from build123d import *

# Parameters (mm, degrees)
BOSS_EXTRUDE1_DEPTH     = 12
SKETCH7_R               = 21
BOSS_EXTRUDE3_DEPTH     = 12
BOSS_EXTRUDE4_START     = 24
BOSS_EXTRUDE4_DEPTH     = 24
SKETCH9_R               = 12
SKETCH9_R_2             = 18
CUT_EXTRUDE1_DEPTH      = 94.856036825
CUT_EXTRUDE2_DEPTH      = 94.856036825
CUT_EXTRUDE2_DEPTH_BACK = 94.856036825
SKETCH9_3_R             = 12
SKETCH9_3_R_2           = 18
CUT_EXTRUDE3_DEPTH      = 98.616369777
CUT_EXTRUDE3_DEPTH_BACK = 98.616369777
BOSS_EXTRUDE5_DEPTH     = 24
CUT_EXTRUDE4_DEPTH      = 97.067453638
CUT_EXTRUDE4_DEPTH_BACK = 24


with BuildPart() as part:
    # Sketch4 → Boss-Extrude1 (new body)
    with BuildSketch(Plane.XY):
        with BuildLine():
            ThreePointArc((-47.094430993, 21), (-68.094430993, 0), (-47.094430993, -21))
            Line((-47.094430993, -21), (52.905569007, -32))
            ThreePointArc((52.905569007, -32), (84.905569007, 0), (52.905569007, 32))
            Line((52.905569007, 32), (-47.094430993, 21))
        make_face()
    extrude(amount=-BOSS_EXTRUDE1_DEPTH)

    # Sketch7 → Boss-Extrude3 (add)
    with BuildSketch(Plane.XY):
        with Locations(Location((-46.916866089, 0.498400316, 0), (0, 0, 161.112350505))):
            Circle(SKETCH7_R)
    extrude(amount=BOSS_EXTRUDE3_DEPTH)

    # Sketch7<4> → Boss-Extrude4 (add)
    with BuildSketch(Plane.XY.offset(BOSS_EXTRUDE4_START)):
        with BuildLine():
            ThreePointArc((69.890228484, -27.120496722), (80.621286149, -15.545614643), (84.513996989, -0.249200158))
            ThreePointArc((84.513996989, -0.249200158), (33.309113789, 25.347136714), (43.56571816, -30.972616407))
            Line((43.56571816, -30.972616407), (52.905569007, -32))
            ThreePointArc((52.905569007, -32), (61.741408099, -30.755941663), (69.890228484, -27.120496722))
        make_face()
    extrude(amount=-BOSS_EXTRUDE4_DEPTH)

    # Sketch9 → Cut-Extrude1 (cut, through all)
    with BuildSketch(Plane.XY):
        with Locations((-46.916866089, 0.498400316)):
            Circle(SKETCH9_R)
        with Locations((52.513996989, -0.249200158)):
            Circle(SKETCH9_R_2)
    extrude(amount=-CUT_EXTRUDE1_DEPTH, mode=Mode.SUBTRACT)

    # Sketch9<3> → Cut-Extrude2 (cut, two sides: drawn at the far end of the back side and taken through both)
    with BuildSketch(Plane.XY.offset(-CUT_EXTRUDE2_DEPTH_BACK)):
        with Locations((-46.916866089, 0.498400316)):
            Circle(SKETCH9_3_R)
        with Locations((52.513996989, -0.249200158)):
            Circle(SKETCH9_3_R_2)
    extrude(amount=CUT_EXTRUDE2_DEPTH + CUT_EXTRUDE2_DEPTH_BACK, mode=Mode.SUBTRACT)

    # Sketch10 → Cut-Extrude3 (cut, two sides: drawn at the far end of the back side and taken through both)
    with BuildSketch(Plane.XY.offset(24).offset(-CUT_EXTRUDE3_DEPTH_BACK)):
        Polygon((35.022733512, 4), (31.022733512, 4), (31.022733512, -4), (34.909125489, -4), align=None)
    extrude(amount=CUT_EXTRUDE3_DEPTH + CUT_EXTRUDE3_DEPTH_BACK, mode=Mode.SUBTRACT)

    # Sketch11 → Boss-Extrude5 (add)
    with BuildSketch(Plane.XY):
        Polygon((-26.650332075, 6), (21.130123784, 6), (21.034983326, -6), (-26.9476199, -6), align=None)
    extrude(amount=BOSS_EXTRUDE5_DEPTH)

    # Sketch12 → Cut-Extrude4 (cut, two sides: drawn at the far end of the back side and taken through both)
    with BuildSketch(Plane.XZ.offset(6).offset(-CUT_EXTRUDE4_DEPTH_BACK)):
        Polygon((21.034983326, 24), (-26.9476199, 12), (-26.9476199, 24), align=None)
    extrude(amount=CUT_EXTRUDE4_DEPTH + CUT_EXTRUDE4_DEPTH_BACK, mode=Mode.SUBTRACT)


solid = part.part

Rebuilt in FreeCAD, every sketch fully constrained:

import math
import FreeCAD as App
import Part
import Sketcher
from FreeCAD import Vector
Q = App.Units.Quantity

doc = App.newDocument("Part")
body = doc.addObject("PartDesign::Body", "Body")

# Sketch on XY plane
sketch1 = body.newObject("Sketcher::SketchObject", "Sketch")
sketch1.AttachmentSupport = (doc.getObject("XY_Plane"), [""])
sketch1.MapMode = "FlatFace"
sketch1.addGeometry([
    Part.ArcOfCircle(Part.Circle(Vector(-47, 0, 0), Vector(0, 0, 1), 21), math.radians(90), math.radians(270)),
    Part.LineSegment(Vector(-47, -21, 0), Vector(53, -32, 0)),
    Part.ArcOfCircle(Part.Circle(Vector(53, 0, 0), Vector(0, 0, 1), 32), math.radians(-90), math.radians(90)),
    Part.LineSegment(Vector(53, 32, 0), Vector(-47, 21, 0)),
], False)
sketch1.addConstraint([
    Sketcher.Constraint("Coincident", 0, 2, 1, 1),
    Sketcher.Constraint("Coincident", 1, 2, 2, 1),
    Sketcher.Constraint("Coincident", 2, 2, 3, 1),
    Sketcher.Constraint("Coincident", 3, 2, 0, 1),
    Sketcher.Constraint("Symmetric", 1, 2, 2, 2, -1),
    Sketcher.Constraint("Symmetric", 0, 2, 3, 2, -1),
    Sketcher.Constraint("Vertical", 2, 3, 1, 2),
    Sketcher.Constraint("Radius", 0, Q("21 mm")),
    Sketcher.Constraint("Radius", 2, Q("32 mm")),
    Sketcher.Constraint("DistanceX", 0, 3, 2, 3, Q("100 mm")),
    Sketcher.Constraint("DistanceX", 0, 2, 2, 3, Q("100 mm")),
    Sketcher.Constraint("DistanceX", 0, 3, -1, 1, Q("47.094431 mm")),
])
pad1 = body.newObject("PartDesign::Pad", "Pad")
pad1.Profile = sketch1
pad1.Length = 12
pad1.Reversed = True

# Sketch on XY plane
sketch2 = body.newObject("Sketcher::SketchObject", "Sketch001")
sketch2.AttachmentSupport = (doc.getObject("XY_Plane"), [""])
sketch2.MapMode = "FlatFace"
sketch2.addGeometry(Part.Circle(Vector(-47, 0, 0), Vector(0, 0, 1), 21), False)
sketch2.addConstraint([
    Sketcher.Constraint("Diameter", 0, Q("42 mm")),
    Sketcher.Constraint("DistanceY", -1, 1, 0, 3, Q("0.4984 mm")),
    Sketcher.Constraint("DistanceX", 0, 3, -1, 1, Q("46.916866 mm")),
])
pad2 = body.newObject("PartDesign::Pad", "Pad001")
pad2.Profile = sketch2
pad2.Length = 12

# Sketch on XY plane
sketch3 = body.newObject("Sketcher::SketchObject", "Sketch002")
sketch3.AttachmentSupport = (doc.getObject("XY_Plane"), [""])
sketch3.MapMode = "FlatFace"
sketch3.AttachmentOffset = App.Placement(Vector(0, 0, 24), App.Rotation())
sketch3.addGeometry([
    Part.ArcOfCircle(Part.Circle(Vector(53, 0, 0), Vector(0, 0, 1), 32), math.radians(-57), math.radians(0)),
    Part.ArcOfCircle(Part.Circle(Vector(53, 0, 0), Vector(0, 0, 1), 32), math.radians(0), math.radians(254)),
    Part.LineSegment(Vector(44, -31, 0), Vector(53, -32, 0)),
    Part.ArcOfCircle(Part.Circle(Vector(53, 0, 0), Vector(0, 0, 1), 32), math.radians(-90), math.radians(-58)),
], False)
sketch3.addConstraint([
    Sketcher.Constraint("Tangent", 0, 2, 1, 1),
    Sketcher.Constraint("Coincident", 1, 2, 2, 1),
    Sketcher.Constraint("Coincident", 2, 2, 3, 1),
    Sketcher.Constraint("Coincident", 3, 2, 0, 1),
    Sketcher.Constraint("Equal", 0, 1),
    Sketcher.Constraint("Equal", 1, 3),
    Sketcher.Constraint("PointOnObject", 3, 3, -1),
    Sketcher.Constraint("Horizontal", 1, 3, 0, 2),
    Sketcher.Constraint("Vertical", 3, 3, 2, 2),
    Sketcher.Constraint("Radius", 0, Q("32 mm")),
    Sketcher.Constraint("DistanceY", 0, 3, -1, 1, Q("0.2492 mm")),
    Sketcher.Constraint("DistanceX", -1, 1, 3, 3, Q("52.905569 mm")),
    Sketcher.Constraint("DistanceX", -1, 1, 1, 2, Q("43.565718 mm")),
    Sketcher.Constraint("DistanceX", -1, 1, 3, 2, Q("69.890228 mm")),
])
pad3 = body.newObject("PartDesign::Pad", "Pad002")
pad3.Profile = sketch3
pad3.Length = 24
pad3.Reversed = True

# Sketch on XY plane
sketch4 = body.newObject("Sketcher::SketchObject", "Sketch003")
sketch4.AttachmentSupport = (doc.getObject("XY_Plane"), [""])
sketch4.MapMode = "FlatFace"
sketch4.addGeometry([
    Part.Circle(Vector(-47, 0, 0), Vector(0, 0, 1), 12),
    Part.Circle(Vector(53, 0, 0), Vector(0, 0, 1), 18),
], False)
sketch4.addConstraint([
    Sketcher.Constraint("Diameter", 0, Q("24 mm")),
    Sketcher.Constraint("Diameter", 1, Q("36 mm")),
    Sketcher.Constraint("DistanceY", -1, 1, 0, 3, Q("0.4984 mm")),
    Sketcher.Constraint("DistanceY", 1, 3, -1, 1, Q("0.2492 mm")),
    Sketcher.Constraint("DistanceX", 0, 3, -1, 1, Q("46.916866 mm")),
    Sketcher.Constraint("DistanceX", -1, 1, 1, 3, Q("52.513997 mm")),
])
pocket1 = body.newObject("PartDesign::Pocket", "Pocket")
pocket1.Profile = sketch4
pocket1.Type = "ThroughAll"

# Sketch on XY plane
sketch5 = body.newObject("Sketcher::SketchObject", "Sketch004")
sketch5.AttachmentSupport = (doc.getObject("XY_Plane"), [""])
sketch5.MapMode = "FlatFace"
sketch5.addGeometry([
    Part.Circle(Vector(-47, 0, 0), Vector(0, 0, 1), 12),
    Part.Circle(Vector(53, 0, 0), Vector(0, 0, 1), 18),
], False)
sketch5.addConstraint([
    Sketcher.Constraint("Diameter", 0, Q("24 mm")),
    Sketcher.Constraint("Diameter", 1, Q("36 mm")),
    Sketcher.Constraint("DistanceY", -1, 1, 0, 3, Q("0.4984 mm")),
    Sketcher.Constraint("DistanceY", 1, 3, -1, 1, Q("0.2492 mm")),
    Sketcher.Constraint("DistanceX", 0, 3, -1, 1, Q("46.916866 mm")),
    Sketcher.Constraint("DistanceX", -1, 1, 1, 3, Q("52.513997 mm")),
])
pocket2 = body.newObject("PartDesign::Pocket", "Pocket001")
pocket2.Profile = sketch5
pocket2.Type = "ThroughAll"
pocket2.Midplane = True

# Sketch on XY plane
sketch6 = body.newObject("Sketcher::SketchObject", "Sketch005")
sketch6.AttachmentSupport = (doc.getObject("XY_Plane"), [""])
sketch6.MapMode = "FlatFace"
sketch6.AttachmentOffset = App.Placement(Vector(0, 0, 24), App.Rotation())
sketch6.addGeometry([
    Part.LineSegment(Vector(35, 4, 0), Vector(31, 4, 0)),
    Part.LineSegment(Vector(31, 4, 0), Vector(31, -4, 0)),
    Part.LineSegment(Vector(31, -4, 0), Vector(34.9, -4, 0)),
    Part.LineSegment(Vector(34.9, -4, 0), Vector(35, 4, 0)),
], False)
sketch6.addConstraint([
    Sketcher.Constraint("Coincident", 0, 2, 1, 1),
    Sketcher.Constraint("Coincident", 1, 2, 2, 1),
    Sketcher.Constraint("Coincident", 2, 2, 3, 1),
    Sketcher.Constraint("Coincident", 3, 2, 0, 1),
    Sketcher.Constraint("Horizontal", 0),
    Sketcher.Constraint("Vertical", 1),
    Sketcher.Constraint("Horizontal", 2),
    Sketcher.Constraint("DistanceX", 0, 2, 0, 1, Q("4 mm")),
    Sketcher.Constraint("DistanceY", 1, 2, 1, 1, Q("8 mm")),
    Sketcher.Constraint("DistanceY", -1, 1, 0, 2, Q("4 mm")),
    Sketcher.Constraint("DistanceX", 2, 1, 2, 2, Q("3.886392 mm")),
    Sketcher.Constraint("DistanceX", -1, 1, 0, 2, Q("31.022734 mm")),
])
pocket3 = body.newObject("PartDesign::Pocket", "Pocket002")
pocket3.Profile = sketch6
pocket3.Type = "ThroughAll"
pocket3.Midplane = True

# Sketch on XY plane
sketch7 = body.newObject("Sketcher::SketchObject", "Sketch006")
sketch7.AttachmentSupport = (doc.getObject("XY_Plane"), [""])
sketch7.MapMode = "FlatFace"
sketch7.addGeometry([
    Part.LineSegment(Vector(21.130124, 6, 0), Vector(-26.650332, 6, 0)),
    Part.LineSegment(Vector(-26.650332, 6, 0), Vector(-26.94762, -6, 0)),
    Part.LineSegment(Vector(-26.94762, -6, 0), Vector(21.034983, -6, 0)),
    Part.LineSegment(Vector(21.034983, -6, 0), Vector(21.130124, 6, 0)),
], False)
sketch7.addConstraint([
    Sketcher.Constraint("Coincident", 0, 2, 1, 1),
    Sketcher.Constraint("Coincident", 1, 2, 2, 1),
    Sketcher.Constraint("Coincident", 2, 2, 3, 1),
    Sketcher.Constraint("Coincident", 3, 2, 0, 1),
    Sketcher.Constraint("Horizontal", 0),
    Sketcher.Constraint("Horizontal", 2),
    Sketcher.Constraint("DistanceY", -1, 1, 0, 2, Q("6 mm")),
    Sketcher.Constraint("DistanceY", 1, 2, -1, 1, Q("6 mm")),
    Sketcher.Constraint("Distance", 1, Q("12.003682 mm")),
    Sketcher.Constraint("DistanceX", 0, 2, 0, 1, Q("47.780456 mm")),
    Sketcher.Constraint("DistanceX", 2, 1, 2, 2, Q("47.982603 mm")),
    Sketcher.Constraint("DistanceX", 1, 2, -1, 1, Q("26.94762 mm")),
])
pad4 = body.newObject("PartDesign::Pad", "Pad003")
pad4.Profile = sketch7
pad4.Length = 24

# Sketch on XZ plane
sketch8 = body.newObject("Sketcher::SketchObject", "Sketch007")
sketch8.AttachmentSupport = (doc.getObject("XZ_Plane"), [""])
sketch8.MapMode = "FlatFace"
sketch8.AttachmentOffset = App.Placement(Vector(0, 0, 6), App.Rotation())
sketch8.addGeometry([
    Part.LineSegment(Vector(-27, 12, 0), Vector(21, 24, 0)),
    Part.LineSegment(Vector(21, 24, 0), Vector(-27, 24, 0)),
    Part.LineSegment(Vector(-27, 24, 0), Vector(-27, 12, 0)),
], False)
sketch8.addConstraint([
    Sketcher.Constraint("Coincident", 0, 2, 1, 1),
    Sketcher.Constraint("Coincident", 1, 2, 2, 1),
    Sketcher.Constraint("Coincident", 2, 2, 0, 1),
    Sketcher.Constraint("Horizontal", 1),
    Sketcher.Constraint("Vertical", 2),
    Sketcher.Constraint("DistanceY", 2, 2, 2, 1, Q("12 mm")),
    Sketcher.Constraint("DistanceY", -1, 1, 0, 2, Q("24 mm")),
    Sketcher.Constraint("Distance", 0, Q("49.46039 mm")),
    Sketcher.Constraint("DistanceX", 1, 2, -1, 1, Q("26.94762 mm")),
])
pocket4 = body.newObject("PartDesign::Pocket", "Pocket003")
pocket4.Profile = sketch8
pocket4.Type = "ThroughAll"
pocket4.Midplane = True

doc.recompute()
